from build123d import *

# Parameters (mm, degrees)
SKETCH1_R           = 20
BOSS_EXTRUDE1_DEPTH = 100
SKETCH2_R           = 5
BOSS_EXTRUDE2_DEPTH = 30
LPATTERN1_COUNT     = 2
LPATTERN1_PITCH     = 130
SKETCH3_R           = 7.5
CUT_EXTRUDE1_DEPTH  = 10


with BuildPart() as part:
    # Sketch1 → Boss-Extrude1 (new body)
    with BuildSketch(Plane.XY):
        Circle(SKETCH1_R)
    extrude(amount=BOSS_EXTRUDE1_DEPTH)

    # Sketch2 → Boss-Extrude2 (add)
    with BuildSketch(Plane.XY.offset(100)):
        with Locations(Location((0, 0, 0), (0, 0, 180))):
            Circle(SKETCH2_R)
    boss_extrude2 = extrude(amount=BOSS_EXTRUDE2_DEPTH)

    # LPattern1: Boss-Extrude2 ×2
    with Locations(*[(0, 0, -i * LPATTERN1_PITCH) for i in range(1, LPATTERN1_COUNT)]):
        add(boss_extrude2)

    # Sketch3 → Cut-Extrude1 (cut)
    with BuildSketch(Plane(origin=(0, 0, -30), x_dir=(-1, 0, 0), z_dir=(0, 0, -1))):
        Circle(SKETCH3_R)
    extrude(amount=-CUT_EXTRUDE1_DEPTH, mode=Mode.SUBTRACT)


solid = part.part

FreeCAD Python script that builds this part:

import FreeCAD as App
import Part
import Sketcher
Q = App.Units.Quantity

doc = App.newDocument("Part")
body = doc.addObject("PartDesign::Body", "Body")

# Sketch on XY plane
sketch1 = doc.addObject("Sketcher::SketchObject", "Sketch")
body.addObject(sketch1)
sketch1.AttachmentSupport = (doc.XY_Plane, [""])
sketch1.MapMode = "FlatFace"
sketch1.addGeometry(Part.Circle(App.Vector(0, 0, 0), App.Vector(0, 0, 1), 20), False)
sketch1.addConstraint(Sketcher.Constraint("Coincident", 0, 3, -1, 1))
sketch1.addConstraint(Sketcher.Constraint("Diameter", 0, Q("40 mm")))
pad1 = doc.addObject("PartDesign::Pad", "Pad")
body.addObject(pad1)
pad1.Profile = sketch1
pad1.Length = 100

# Sketch on XY plane
sketch2 = doc.addObject("Sketcher::SketchObject", "Sketch001")
body.addObject(sketch2)
sketch2.AttachmentSupport = (doc.XY_Plane, [""])
sketch2.MapMode = "FlatFace"
sketch2.AttachmentOffset = App.Placement(App.Vector(0, 0, 100), App.Rotation())
sketch2.addGeometry(Part.Circle(App.Vector(0, 0, 0), App.Vector(0, 0, 1), 5), False)
sketch2.addConstraint(Sketcher.Constraint("Coincident", 0, 3, -1, 1))
sketch2.addConstraint(Sketcher.Constraint("Diameter", 0, Q("10 mm")))
pad2 = doc.addObject("PartDesign::Pad", "Pad001")
body.addObject(pad2)
pad2.Profile = sketch2
pad2.Length = 30
doc.recompute()

linearpattern = doc.addObject("PartDesign::LinearPattern", "LinearPattern")
body.addObject(linearpattern)
linearpattern.Originals = [pad2]
linearpattern.Direction = (doc.Z_Axis, [""])
linearpattern.Mode = "offset"
linearpattern.Offset = 130
linearpattern.Occurrences = 2
linearpattern.Reversed = True
body.Tip = linearpattern

# Sketch on XY plane
sketch3 = doc.addObject("Sketcher::SketchObject", "Sketch002")
body.addObject(sketch3)
sketch3.AttachmentSupport = (doc.XY_Plane, [""])
sketch3.MapMode = "FlatFace"
sketch3.AttachmentOffset = App.Placement(App.Vector(0, 0, -30), App.Rotation())
sketch3.addGeometry(Part.Circle(App.Vector(0, 0, 0), App.Vector(0, 0, 1), 8), False)
sketch3.addConstraint(Sketcher.Constraint("Coincident", 0, 3, -1, 1))
sketch3.addConstraint(Sketcher.Constraint("Diameter", 0, Q("15 mm")))
pocket1 = doc.addObject("PartDesign::Pocket", "Pocket")
body.addObject(pocket1)
pocket1.Profile = sketch3
pocket1.Length = 10
pocket1.Reversed = True

doc.recompute()
